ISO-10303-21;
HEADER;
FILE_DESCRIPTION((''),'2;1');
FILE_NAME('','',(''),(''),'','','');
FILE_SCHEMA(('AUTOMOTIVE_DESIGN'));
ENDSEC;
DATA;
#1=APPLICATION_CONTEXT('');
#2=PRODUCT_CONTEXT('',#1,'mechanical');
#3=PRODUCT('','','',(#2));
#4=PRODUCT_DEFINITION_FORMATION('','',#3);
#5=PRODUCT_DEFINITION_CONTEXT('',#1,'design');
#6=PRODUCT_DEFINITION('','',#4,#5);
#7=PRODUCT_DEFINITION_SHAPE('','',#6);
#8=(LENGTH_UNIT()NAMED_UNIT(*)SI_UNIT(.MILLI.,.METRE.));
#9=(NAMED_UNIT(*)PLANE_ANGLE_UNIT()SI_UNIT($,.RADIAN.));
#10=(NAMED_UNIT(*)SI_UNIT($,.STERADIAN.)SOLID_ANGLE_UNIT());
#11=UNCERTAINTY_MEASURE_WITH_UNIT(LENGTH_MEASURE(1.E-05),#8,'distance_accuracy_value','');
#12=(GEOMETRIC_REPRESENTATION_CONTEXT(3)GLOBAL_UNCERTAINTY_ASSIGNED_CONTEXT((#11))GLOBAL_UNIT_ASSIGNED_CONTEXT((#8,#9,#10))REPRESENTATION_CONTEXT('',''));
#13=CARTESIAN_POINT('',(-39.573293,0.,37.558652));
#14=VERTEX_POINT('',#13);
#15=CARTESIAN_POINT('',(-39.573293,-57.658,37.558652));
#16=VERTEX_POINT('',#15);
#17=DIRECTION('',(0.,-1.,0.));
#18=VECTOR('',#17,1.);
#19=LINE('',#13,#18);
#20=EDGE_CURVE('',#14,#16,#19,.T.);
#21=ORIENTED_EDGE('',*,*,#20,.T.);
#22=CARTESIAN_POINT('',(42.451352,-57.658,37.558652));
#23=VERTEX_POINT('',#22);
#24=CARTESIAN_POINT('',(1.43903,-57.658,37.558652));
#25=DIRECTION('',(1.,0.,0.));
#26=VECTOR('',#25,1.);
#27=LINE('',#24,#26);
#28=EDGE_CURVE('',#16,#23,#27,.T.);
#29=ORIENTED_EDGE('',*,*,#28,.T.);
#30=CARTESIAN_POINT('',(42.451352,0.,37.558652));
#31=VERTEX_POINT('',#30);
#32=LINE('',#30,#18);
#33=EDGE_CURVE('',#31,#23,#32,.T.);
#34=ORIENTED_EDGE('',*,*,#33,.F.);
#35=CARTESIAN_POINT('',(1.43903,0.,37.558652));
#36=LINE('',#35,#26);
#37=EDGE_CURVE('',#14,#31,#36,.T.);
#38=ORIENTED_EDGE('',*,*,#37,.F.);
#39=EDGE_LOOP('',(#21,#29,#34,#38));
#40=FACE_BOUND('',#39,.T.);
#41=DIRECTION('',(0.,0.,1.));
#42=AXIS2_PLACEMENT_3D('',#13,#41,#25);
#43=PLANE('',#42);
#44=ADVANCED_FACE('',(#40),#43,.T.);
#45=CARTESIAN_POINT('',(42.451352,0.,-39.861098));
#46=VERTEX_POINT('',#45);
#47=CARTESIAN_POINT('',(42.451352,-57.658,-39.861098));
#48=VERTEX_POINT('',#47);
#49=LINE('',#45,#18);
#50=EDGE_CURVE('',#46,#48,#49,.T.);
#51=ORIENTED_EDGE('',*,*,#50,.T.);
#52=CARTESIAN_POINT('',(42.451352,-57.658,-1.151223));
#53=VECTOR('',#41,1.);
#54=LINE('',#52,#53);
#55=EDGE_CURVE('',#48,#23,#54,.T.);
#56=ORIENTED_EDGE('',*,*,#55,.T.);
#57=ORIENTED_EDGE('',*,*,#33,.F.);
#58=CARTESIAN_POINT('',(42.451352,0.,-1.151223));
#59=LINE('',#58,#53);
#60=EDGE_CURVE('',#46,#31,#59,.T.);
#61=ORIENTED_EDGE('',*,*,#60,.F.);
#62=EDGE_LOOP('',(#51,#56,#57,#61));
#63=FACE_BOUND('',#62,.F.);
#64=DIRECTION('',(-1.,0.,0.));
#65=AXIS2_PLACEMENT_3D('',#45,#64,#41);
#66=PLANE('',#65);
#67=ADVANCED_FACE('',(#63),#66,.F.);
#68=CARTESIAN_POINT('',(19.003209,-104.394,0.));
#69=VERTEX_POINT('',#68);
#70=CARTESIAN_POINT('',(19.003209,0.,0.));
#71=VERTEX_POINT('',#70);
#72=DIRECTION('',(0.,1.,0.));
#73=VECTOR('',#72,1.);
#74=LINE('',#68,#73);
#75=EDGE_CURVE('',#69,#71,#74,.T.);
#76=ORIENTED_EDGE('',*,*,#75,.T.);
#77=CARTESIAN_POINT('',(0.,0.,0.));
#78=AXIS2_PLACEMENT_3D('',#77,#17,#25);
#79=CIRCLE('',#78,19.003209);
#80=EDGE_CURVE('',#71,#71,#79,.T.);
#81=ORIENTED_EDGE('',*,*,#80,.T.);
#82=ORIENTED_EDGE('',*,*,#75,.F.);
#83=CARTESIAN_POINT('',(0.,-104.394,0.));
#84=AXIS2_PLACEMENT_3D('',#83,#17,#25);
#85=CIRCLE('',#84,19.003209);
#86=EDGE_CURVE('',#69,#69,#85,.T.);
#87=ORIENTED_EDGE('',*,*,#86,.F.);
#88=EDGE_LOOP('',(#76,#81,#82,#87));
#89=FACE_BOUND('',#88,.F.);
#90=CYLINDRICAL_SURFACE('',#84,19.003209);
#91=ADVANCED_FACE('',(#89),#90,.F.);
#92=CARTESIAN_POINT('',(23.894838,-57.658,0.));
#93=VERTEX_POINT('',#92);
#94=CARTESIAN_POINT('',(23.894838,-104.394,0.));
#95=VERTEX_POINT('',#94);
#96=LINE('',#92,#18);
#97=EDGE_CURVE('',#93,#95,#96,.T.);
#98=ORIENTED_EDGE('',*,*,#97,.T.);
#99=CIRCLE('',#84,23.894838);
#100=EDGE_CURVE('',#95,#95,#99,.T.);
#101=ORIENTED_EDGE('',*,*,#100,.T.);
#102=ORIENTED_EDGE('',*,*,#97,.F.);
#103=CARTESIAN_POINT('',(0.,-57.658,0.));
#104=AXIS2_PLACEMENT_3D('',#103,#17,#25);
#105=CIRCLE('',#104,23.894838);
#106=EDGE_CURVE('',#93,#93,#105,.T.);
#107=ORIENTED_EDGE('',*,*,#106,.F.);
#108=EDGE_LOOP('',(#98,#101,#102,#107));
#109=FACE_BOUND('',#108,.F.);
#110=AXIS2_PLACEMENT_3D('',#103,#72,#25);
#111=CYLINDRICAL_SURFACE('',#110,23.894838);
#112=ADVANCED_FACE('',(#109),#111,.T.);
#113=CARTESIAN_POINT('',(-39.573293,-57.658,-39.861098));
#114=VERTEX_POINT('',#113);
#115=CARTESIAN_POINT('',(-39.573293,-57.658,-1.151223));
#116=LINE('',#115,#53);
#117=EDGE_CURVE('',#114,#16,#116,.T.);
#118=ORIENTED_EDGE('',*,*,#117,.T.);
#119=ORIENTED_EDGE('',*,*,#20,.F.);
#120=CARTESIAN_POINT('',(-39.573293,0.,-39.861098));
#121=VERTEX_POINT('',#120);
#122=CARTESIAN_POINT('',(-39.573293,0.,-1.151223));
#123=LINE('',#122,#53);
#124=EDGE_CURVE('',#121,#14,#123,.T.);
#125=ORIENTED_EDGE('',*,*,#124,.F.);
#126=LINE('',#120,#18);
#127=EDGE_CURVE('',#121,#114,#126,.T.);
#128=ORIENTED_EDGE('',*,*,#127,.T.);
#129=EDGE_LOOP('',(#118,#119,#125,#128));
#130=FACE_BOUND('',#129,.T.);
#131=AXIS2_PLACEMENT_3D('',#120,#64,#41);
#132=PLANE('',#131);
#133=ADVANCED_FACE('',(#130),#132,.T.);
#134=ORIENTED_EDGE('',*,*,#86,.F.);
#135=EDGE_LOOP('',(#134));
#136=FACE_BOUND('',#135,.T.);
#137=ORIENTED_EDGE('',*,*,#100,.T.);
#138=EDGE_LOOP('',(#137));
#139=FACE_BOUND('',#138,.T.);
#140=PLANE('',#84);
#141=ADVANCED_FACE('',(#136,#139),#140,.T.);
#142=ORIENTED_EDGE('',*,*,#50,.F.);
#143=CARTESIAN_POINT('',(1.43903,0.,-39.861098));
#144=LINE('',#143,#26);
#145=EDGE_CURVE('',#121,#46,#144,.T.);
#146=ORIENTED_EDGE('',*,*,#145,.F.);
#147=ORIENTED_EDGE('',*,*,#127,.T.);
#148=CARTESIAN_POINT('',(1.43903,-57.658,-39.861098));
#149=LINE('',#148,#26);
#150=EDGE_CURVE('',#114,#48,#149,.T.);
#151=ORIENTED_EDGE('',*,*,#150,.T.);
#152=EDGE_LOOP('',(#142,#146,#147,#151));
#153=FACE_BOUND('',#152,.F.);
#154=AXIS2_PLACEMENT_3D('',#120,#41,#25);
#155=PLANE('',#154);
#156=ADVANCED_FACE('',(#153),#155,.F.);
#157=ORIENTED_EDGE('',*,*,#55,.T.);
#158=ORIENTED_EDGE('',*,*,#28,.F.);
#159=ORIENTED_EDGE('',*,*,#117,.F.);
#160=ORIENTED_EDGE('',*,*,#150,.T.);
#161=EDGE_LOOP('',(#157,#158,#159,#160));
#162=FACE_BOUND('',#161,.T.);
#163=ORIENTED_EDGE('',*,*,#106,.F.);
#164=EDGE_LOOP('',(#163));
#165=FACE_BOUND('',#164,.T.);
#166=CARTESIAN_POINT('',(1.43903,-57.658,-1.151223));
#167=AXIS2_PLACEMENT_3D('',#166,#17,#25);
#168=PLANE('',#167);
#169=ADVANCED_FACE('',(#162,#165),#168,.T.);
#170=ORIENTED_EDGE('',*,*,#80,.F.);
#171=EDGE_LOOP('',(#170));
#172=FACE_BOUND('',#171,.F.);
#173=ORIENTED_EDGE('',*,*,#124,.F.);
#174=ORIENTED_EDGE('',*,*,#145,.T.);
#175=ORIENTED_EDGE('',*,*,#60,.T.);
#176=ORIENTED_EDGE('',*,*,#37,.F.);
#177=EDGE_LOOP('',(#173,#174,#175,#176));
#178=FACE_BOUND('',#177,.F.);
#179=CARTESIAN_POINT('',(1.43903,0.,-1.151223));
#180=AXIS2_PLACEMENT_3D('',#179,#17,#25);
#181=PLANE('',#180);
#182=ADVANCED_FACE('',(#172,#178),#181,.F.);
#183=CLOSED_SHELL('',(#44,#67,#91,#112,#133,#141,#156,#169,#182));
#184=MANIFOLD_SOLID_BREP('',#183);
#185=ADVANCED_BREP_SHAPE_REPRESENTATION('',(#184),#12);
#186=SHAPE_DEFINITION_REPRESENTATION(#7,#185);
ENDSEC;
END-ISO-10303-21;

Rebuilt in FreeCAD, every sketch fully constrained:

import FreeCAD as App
import Part
import Sketcher
Q = App.Units.Quantity

doc = App.newDocument("Part")
body = doc.addObject("PartDesign::Body", "Body")

# Sketch on XZ plane
sketch1 = body.newObject("Sketcher::SketchObject", "Sketch")
sketch1.AttachmentSupport = (doc.getObject("XZ_Plane"), [""])
sketch1.MapMode = "FlatFace"
sketch1.addGeometry([
    Part.LineSegment(App.Vector(-40, 38, 0), App.Vector(-40, -40, 0)),
    Part.LineSegment(App.Vector(-40, -40, 0), App.Vector(42, -40, 0)),
    Part.LineSegment(App.Vector(42, -40, 0), App.Vector(42, 38, 0)),
    Part.LineSegment(App.Vector(42, 38, 0), App.Vector(-40, 38, 0)),
], False)
sketch1.addConstraint([
    Sketcher.Constraint("Coincident", 0, 2, 1, 1),
    Sketcher.Constraint("Coincident", 1, 2, 2, 1),
    Sketcher.Constraint("Coincident", 2, 2, 3, 1),
    Sketcher.Constraint("Coincident", 3, 2, 0, 1),
    Sketcher.Constraint("Vertical", 0),
    Sketcher.Constraint("Horizontal", 1),
    Sketcher.Constraint("Vertical", 2),
    Sketcher.Constraint("Horizontal", 3),
    Sketcher.Constraint("DistanceY", 0, 2, 0, 1, Q("77.41975 mm")),
    Sketcher.Constraint("DistanceX", 1, 1, 1, 2, Q("82.024645 mm")),
    Sketcher.Constraint("DistanceX", 0, 2, -1, 1, Q("39.573293 mm")),
    Sketcher.Constraint("DistanceY", 0, 2, -1, 1, Q("39.861098 mm")),
])
pad1 = body.newObject("PartDesign::Pad", "Pad")
pad1.Profile = sketch1
pad1.Length = Q("2.27 in")

# Sketch on XZ plane
sketch2 = body.newObject("Sketcher::SketchObject", "Sketch001")
sketch2.AttachmentSupport = (doc.getObject("XZ_Plane"), [""])
sketch2.MapMode = "FlatFace"
sketch2.AttachmentOffset = App.Placement(App.Vector(0, 0, 2.27 * 25.4), App.Rotation())
sketch2.addGeometry(Part.Circle(App.Vector(0, 0, 0), App.Vector(0, 0, 1), 24), False)
sketch2.addConstraint([
    Sketcher.Constraint("Coincident", 0, 3, -1, 1),
    Sketcher.Constraint("Diameter", 0, Q("47.789676 mm")),
])
pad2 = body.newObject("PartDesign::Pad", "Pad001")
pad2.Profile = sketch2
pad2.Length = Q("1.84 in")

# Sketch on XZ plane
sketch3 = body.newObject("Sketcher::SketchObject", "Sketch002")
sketch3.AttachmentSupport = (doc.getObject("XZ_Plane"), [""])
sketch3.MapMode = "FlatFace"
sketch3.AttachmentOffset = App.Placement(App.Vector(0, 0, 4.11 * 25.4), App.Rotation())
sketch3.addGeometry(Part.Circle(App.Vector(0, 0, 0), App.Vector(0, 0, 1), 19), False)
sketch3.addConstraint([
    Sketcher.Constraint("Coincident", 0, 3, -1, 1),
    Sketcher.Constraint("Diameter", 0, Q("38.006418 mm")),
])
pocket1 = body.newObject("PartDesign::Pocket", "Pocket")
pocket1.Profile = sketch3
pocket1.Length = Q("7.83 in")

doc.recompute()
